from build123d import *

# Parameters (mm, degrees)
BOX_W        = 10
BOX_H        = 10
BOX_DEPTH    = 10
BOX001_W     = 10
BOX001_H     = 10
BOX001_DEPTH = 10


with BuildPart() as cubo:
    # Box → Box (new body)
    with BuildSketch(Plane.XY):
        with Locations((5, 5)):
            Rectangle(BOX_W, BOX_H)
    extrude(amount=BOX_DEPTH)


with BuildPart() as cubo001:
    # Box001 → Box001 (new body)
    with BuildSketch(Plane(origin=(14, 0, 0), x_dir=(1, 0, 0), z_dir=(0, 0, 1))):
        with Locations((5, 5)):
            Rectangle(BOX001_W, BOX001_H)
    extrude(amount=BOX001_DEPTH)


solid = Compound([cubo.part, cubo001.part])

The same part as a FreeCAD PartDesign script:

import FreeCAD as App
import Part
import Sketcher
from FreeCAD import Vector


def add_polygon(sketch, points):
    """Adds a closed chain of lines whose ends are joined by coincident constraints."""
    first, n = sketch.GeometryCount, len(points)
    for a, b in zip(points, points[1:] + points[:1]):
        sketch.addGeometry(Part.LineSegment(App.Vector(*a, 0), App.Vector(*b, 0)), False)
    for i in range(n):
        sketch.addConstraint(Sketcher.Constraint("Coincident", first + i, 2, first + (i + 1) % n, 1))

doc = App.newDocument("Part")
body = doc.addObject("PartDesign::Body", "Body")

# Sketch on XY plane
sketch1 = doc.addObject("Sketcher::SketchObject", "Sketch")
body.addObject(sketch1)
sketch1.AttachmentSupport = (doc.XY_Plane, [""])
sketch1.MapMode = "FlatFace"
add_polygon(sketch1, [(0, 10), (0, 0), (10, 0), (10, 10)])  # lines 0-3
sketch1.addConstraint(Sketcher.Constraint("Vertical", 0))
sketch1.addConstraint(Sketcher.Constraint("Horizontal", 1))
sketch1.addConstraint(Sketcher.Constraint("Vertical", 2))
sketch1.addConstraint(Sketcher.Constraint("Horizontal", 3))
sketch1.addConstraint(Sketcher.Constraint("Coincident", 0, 2, -1, 1))
sketch1.addConstraint(Sketcher.Constraint("Equal", 3, 0))
sketch1.addConstraint(Sketcher.Constraint("DistanceX", 1, 1, 1, 2, 10.0))
pad1 = doc.addObject("PartDesign::Pad", "Pad")
body.addObject(pad1)
pad1.Profile = sketch1
pad1.Length = 10
body2 = doc.addObject("PartDesign::Body", "Body001")

# Sketch on XY plane
sketch2 = doc.addObject("Sketcher::SketchObject", "Sketch001")
body2.addObject(sketch2)
sketch2.AttachmentSupport = (doc.getObject("XY_Plane001"), [""])
sketch2.MapMode = "FlatFace"
add_polygon(sketch2, [(14, 10), (14, 0), (24, 0), (24, 10)])  # lines 0-3
sketch2.addConstraint(Sketcher.Constraint("Vertical", 0))
sketch2.addConstraint(Sketcher.Constraint("Horizontal", 1))
sketch2.addConstraint(Sketcher.Constraint("Vertical", 2))
sketch2.addConstraint(Sketcher.Constraint("Horizontal", 3))
sketch2.addConstraint(Sketcher.Constraint("PointOnObject", 0, 2, -1))
sketch2.addConstraint(Sketcher.Constraint("Equal", 3, 0))
sketch2.addConstraint(Sketcher.Constraint("DistanceX", 1, 1, 1, 2, 10.0))
sketch2.addConstraint(Sketcher.Constraint("DistanceX", -1, 1, 0, 2, 14.0))
pad2 = doc.addObject("PartDesign::Pad", "Pad001")
body2.addObject(pad2)
pad2.Profile = sketch2
pad2.Length = 10

doc.recompute()
